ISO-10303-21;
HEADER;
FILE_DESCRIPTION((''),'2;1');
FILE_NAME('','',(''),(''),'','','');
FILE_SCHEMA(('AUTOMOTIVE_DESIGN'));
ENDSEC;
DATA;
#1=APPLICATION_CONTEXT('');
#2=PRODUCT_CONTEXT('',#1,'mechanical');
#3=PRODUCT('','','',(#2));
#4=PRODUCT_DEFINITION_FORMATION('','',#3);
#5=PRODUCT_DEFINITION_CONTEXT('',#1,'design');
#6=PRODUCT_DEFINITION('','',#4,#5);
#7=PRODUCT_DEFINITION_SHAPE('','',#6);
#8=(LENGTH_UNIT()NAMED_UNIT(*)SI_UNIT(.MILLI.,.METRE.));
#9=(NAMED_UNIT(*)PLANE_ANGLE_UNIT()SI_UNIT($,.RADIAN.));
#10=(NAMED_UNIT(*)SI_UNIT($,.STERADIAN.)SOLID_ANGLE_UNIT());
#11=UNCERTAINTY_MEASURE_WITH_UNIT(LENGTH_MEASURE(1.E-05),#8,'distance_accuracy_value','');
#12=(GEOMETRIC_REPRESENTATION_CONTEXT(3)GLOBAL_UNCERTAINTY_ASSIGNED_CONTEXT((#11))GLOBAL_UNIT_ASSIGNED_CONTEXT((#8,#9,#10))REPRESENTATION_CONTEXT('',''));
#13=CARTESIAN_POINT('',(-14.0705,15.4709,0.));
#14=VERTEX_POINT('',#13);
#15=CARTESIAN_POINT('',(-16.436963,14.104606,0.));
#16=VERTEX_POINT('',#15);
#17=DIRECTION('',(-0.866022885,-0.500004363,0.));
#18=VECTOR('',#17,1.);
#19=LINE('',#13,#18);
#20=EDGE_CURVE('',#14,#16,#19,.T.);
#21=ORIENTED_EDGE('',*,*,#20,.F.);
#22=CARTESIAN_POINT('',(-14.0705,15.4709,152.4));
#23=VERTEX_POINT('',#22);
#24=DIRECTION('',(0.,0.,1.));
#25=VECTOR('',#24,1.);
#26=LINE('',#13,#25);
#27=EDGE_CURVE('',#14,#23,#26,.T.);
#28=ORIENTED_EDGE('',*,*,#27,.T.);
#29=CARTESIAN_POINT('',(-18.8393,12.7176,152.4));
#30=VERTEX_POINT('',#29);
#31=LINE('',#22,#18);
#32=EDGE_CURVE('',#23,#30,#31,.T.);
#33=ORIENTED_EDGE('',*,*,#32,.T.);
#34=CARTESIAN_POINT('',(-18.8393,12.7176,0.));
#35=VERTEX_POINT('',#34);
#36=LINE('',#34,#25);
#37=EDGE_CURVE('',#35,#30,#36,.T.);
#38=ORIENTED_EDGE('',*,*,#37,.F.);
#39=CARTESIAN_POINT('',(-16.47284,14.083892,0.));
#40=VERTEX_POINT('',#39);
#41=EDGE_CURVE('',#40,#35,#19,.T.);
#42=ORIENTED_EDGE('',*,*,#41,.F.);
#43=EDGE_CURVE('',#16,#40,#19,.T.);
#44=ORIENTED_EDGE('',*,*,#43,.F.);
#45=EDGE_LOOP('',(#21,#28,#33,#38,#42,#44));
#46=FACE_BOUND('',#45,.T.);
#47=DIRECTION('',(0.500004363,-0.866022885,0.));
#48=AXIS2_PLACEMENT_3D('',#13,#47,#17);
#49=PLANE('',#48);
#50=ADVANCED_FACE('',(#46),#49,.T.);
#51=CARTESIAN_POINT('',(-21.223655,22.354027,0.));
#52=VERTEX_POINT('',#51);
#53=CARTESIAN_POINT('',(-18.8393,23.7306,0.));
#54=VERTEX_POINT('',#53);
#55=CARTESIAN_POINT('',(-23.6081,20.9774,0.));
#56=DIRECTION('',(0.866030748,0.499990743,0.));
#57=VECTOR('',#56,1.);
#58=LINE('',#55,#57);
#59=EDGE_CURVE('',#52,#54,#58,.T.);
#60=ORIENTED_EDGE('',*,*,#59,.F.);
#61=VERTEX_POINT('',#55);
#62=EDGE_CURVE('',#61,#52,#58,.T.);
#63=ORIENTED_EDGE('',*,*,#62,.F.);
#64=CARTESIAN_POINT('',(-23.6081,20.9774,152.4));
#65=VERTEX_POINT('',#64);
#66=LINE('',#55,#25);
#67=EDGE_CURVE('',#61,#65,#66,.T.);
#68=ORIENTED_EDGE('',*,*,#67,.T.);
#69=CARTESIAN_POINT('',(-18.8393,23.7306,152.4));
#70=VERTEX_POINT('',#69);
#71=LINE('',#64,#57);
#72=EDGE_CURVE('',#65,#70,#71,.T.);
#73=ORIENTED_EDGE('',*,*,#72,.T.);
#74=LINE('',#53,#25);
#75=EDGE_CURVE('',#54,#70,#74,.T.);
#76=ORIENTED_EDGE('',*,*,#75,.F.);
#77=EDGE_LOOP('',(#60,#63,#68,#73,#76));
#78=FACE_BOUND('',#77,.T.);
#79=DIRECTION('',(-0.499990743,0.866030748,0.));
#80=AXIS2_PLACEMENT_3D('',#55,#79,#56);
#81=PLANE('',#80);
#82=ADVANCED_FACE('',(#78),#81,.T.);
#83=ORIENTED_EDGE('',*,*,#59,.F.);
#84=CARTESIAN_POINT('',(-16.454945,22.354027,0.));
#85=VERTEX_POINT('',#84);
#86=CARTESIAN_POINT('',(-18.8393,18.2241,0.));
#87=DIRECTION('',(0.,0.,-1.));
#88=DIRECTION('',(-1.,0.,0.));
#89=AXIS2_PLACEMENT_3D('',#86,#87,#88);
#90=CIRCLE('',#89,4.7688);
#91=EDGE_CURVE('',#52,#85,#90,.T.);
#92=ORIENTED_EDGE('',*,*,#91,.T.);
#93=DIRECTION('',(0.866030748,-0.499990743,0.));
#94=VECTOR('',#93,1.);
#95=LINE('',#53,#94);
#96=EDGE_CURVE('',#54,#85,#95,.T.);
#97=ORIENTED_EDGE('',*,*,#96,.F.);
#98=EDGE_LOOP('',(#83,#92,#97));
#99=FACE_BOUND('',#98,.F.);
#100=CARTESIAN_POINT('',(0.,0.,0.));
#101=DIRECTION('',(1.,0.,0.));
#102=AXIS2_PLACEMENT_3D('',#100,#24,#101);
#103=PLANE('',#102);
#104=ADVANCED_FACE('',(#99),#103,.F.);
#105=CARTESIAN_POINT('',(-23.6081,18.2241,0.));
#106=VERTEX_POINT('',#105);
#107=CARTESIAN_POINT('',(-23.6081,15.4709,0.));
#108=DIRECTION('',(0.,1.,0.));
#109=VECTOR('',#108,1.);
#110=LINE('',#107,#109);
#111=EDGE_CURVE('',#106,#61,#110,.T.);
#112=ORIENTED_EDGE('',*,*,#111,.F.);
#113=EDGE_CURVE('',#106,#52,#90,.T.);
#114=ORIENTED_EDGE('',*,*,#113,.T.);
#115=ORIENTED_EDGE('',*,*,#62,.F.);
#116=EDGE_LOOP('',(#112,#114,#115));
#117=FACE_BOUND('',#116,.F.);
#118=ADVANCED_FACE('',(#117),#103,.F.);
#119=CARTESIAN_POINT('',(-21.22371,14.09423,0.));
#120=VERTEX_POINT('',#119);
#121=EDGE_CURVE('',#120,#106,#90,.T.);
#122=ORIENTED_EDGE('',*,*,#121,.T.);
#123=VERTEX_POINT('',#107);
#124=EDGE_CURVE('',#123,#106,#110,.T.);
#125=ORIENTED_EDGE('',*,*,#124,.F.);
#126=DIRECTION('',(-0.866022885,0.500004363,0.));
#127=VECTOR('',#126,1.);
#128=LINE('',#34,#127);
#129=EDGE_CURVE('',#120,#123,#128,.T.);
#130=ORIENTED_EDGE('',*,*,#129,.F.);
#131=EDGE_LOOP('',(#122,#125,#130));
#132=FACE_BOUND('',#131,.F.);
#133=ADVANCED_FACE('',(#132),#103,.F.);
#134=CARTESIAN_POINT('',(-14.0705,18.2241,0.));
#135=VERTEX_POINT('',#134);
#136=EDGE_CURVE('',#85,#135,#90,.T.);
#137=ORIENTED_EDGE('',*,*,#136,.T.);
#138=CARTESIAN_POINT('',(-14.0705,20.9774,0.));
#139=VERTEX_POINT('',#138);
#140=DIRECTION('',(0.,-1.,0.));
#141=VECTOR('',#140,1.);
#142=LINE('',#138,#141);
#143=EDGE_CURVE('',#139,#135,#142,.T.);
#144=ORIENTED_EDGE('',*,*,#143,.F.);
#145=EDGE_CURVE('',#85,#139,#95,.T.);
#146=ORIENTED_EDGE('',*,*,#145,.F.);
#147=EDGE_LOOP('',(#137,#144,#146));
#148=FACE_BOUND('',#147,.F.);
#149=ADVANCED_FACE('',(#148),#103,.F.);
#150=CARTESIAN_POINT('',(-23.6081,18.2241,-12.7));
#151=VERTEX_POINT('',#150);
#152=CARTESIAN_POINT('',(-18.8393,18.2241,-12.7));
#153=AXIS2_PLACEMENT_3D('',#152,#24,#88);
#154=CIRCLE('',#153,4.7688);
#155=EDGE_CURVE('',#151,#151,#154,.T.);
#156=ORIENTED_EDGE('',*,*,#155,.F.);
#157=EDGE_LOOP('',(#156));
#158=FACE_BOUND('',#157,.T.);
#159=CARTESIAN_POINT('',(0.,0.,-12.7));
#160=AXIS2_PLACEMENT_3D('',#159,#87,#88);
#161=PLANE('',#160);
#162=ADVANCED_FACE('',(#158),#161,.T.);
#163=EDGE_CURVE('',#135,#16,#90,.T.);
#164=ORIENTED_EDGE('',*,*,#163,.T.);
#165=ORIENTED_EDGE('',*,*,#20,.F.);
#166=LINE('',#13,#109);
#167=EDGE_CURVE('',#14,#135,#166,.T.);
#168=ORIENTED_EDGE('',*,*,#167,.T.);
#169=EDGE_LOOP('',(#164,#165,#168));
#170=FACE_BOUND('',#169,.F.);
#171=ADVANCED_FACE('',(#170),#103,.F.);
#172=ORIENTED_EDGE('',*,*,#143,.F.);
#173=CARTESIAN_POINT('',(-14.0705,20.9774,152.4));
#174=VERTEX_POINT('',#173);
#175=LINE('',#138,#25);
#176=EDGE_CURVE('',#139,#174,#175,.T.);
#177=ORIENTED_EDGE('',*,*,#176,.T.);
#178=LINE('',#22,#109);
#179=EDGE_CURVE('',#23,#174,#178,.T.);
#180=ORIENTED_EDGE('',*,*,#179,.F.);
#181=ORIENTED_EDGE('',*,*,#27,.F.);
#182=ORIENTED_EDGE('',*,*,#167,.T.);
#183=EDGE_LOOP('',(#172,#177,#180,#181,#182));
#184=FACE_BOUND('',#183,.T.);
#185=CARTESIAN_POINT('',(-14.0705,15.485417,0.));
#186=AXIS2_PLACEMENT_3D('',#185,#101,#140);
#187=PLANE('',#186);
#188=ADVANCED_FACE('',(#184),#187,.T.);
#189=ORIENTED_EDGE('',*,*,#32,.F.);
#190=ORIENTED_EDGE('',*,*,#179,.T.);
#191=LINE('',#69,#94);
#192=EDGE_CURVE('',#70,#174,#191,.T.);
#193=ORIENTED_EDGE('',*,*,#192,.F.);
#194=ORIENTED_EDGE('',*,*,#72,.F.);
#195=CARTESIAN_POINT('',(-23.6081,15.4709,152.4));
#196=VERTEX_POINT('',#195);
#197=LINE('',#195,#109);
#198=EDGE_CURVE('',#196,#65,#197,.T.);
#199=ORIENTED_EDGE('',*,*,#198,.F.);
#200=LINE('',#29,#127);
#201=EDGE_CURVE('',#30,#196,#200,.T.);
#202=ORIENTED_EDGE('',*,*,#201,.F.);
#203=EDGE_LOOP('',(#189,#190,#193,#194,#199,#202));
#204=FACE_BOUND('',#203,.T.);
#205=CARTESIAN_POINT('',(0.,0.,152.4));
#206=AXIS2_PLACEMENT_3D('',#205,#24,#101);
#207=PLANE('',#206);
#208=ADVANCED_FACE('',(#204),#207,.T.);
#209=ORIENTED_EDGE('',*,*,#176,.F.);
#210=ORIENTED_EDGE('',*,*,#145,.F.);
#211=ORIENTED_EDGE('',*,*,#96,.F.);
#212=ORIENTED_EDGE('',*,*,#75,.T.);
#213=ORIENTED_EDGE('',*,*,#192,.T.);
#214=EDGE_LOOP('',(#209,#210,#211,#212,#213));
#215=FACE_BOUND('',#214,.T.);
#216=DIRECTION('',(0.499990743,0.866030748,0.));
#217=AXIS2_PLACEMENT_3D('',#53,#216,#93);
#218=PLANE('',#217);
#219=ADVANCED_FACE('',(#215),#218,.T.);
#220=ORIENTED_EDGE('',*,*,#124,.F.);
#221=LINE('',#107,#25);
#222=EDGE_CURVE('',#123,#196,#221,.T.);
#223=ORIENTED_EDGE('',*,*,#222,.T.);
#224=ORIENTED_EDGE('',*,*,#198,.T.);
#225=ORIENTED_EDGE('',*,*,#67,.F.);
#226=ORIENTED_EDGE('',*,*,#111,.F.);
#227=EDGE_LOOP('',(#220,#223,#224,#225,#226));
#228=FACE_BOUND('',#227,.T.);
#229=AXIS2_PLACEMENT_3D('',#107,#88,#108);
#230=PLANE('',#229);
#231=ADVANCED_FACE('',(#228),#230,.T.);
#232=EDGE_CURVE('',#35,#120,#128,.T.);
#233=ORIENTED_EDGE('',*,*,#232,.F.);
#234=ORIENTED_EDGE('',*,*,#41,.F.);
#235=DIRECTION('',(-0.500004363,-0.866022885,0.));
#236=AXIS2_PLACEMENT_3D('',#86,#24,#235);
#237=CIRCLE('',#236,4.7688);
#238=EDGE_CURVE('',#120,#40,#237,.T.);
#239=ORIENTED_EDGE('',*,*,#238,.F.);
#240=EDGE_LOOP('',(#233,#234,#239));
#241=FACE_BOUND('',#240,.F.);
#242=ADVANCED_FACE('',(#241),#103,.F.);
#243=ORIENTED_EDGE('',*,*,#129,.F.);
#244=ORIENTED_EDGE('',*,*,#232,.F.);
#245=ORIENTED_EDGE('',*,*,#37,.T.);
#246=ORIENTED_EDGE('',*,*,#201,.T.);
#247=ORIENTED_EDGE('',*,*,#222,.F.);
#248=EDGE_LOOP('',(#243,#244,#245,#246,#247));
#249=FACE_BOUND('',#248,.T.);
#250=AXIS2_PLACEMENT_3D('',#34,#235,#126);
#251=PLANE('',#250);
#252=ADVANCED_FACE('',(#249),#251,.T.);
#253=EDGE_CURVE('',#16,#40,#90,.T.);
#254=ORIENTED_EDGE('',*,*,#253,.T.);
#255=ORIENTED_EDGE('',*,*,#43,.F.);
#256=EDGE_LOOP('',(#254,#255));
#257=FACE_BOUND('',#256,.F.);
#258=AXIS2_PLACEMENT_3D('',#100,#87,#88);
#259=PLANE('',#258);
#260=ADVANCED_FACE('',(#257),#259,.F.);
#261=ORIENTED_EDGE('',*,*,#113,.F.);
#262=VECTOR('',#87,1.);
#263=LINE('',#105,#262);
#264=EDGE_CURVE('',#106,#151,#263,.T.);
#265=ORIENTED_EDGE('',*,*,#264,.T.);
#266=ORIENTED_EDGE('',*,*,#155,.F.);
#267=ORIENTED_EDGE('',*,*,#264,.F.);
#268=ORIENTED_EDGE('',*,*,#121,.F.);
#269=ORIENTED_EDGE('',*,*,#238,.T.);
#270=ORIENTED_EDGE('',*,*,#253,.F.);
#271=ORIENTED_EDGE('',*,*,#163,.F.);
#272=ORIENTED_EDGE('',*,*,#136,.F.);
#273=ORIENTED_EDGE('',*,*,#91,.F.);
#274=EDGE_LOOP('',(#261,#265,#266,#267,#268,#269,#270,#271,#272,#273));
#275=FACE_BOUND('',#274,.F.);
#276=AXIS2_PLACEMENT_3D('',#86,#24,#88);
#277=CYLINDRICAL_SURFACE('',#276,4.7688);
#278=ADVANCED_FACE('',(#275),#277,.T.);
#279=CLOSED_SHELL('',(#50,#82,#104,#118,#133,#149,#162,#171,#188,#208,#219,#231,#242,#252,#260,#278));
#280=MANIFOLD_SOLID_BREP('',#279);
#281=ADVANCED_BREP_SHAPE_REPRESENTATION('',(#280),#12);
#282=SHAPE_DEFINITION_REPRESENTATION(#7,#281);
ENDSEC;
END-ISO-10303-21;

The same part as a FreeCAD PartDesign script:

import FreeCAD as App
import Part
import Sketcher
from FreeCAD import Vector
Q = App.Units.Quantity


def add_polygon(sketch, points):
    """Adds a closed chain of lines whose ends are joined by coincident constraints."""
    first, n = sketch.GeometryCount, len(points)
    for a, b in zip(points, points[1:] + points[:1]):
        sketch.addGeometry(Part.LineSegment(App.Vector(*a, 0), App.Vector(*b, 0)), False)
    for i in range(n):
        sketch.addConstraint(Sketcher.Constraint("Coincident", first + i, 2, first + (i + 1) % n, 1))

doc = App.newDocument("Part")
body = doc.addObject("PartDesign::Body", "Body")

# Sketch on XY plane
sketch1 = body.newObject("Sketcher::SketchObject", "Sketch")
sketch1.AttachmentSupport = (doc.getObject("XY_Plane"), [""])
sketch1.MapMode = "FlatFace"
add_polygon(sketch1, [(-23.6081, 15.4709), (-18.8393, 12.7176), (-14.0705, 15.4709), (-14.0705, 20.9774), (-18.8393, 23.7306), (-23.6081, 20.9774)])  # lines 0-5
sketch1.addConstraint(Sketcher.Constraint("Vertical", 2))
sketch1.addConstraint(Sketcher.Constraint("Vertical", 5))
sketch1.addConstraint(Sketcher.Constraint("Parallel", 0, 3))
sketch1.addConstraint(Sketcher.Constraint("Parallel", 1, 4))
sketch1.addConstraint(Sketcher.Constraint("Horizontal", 2, 2, 4, 2))
sketch1.addConstraint(Sketcher.Constraint("Horizontal", 1, 2, 5, 2))
sketch1.addConstraint(Sketcher.Constraint("Vertical", 0, 2, 3, 2))
sketch1.addConstraint(Sketcher.Constraint("Angle", 0, Q("-30.0003 deg")))
sketch1.addConstraint(Sketcher.Constraint("DistanceY", 2, 1, 2, 2, Q("0.2168 in")))
sketch1.addConstraint(Sketcher.Constraint("Distance", 0, Q("0.2168 in")))
sketch1.addConstraint(Sketcher.Constraint("DistanceX", 0, 2, -1, 1, Q("0.7417 in")))
sketch1.addConstraint(Sketcher.Constraint("DistanceY", -1, 1, 0, 2, Q("0.5007 in")))
pad1 = body.newObject("PartDesign::Pad", "Pad")
pad1.Profile = sketch1
pad1.Length = Q("6 in")

# Sketch on XY plane
sketch2 = body.newObject("Sketcher::SketchObject", "Sketch001")
sketch2.AttachmentSupport = (doc.getObject("XY_Plane"), [""])
sketch2.MapMode = "FlatFace"
sketch2.addGeometry(Part.Circle(Vector(-18.8393, 18.2241, 0), Vector(0, 0, 1), 4.7688), False)
sketch2.addConstraint(Sketcher.Constraint("Diameter", 0, Q("0.3755 in")))
sketch2.addConstraint(Sketcher.Constraint("DistanceX", 0, 3, -1, 1, Q("0.7417 in")))
sketch2.addConstraint(Sketcher.Constraint("DistanceY", -1, 1, 0, 3, Q("18.224 mm")))
pad2 = body.newObject("PartDesign::Pad", "Pad001")
pad2.Profile = sketch2
pad2.Length = Q("0.5 in")
pad2.Reversed = True

doc.recompute()
